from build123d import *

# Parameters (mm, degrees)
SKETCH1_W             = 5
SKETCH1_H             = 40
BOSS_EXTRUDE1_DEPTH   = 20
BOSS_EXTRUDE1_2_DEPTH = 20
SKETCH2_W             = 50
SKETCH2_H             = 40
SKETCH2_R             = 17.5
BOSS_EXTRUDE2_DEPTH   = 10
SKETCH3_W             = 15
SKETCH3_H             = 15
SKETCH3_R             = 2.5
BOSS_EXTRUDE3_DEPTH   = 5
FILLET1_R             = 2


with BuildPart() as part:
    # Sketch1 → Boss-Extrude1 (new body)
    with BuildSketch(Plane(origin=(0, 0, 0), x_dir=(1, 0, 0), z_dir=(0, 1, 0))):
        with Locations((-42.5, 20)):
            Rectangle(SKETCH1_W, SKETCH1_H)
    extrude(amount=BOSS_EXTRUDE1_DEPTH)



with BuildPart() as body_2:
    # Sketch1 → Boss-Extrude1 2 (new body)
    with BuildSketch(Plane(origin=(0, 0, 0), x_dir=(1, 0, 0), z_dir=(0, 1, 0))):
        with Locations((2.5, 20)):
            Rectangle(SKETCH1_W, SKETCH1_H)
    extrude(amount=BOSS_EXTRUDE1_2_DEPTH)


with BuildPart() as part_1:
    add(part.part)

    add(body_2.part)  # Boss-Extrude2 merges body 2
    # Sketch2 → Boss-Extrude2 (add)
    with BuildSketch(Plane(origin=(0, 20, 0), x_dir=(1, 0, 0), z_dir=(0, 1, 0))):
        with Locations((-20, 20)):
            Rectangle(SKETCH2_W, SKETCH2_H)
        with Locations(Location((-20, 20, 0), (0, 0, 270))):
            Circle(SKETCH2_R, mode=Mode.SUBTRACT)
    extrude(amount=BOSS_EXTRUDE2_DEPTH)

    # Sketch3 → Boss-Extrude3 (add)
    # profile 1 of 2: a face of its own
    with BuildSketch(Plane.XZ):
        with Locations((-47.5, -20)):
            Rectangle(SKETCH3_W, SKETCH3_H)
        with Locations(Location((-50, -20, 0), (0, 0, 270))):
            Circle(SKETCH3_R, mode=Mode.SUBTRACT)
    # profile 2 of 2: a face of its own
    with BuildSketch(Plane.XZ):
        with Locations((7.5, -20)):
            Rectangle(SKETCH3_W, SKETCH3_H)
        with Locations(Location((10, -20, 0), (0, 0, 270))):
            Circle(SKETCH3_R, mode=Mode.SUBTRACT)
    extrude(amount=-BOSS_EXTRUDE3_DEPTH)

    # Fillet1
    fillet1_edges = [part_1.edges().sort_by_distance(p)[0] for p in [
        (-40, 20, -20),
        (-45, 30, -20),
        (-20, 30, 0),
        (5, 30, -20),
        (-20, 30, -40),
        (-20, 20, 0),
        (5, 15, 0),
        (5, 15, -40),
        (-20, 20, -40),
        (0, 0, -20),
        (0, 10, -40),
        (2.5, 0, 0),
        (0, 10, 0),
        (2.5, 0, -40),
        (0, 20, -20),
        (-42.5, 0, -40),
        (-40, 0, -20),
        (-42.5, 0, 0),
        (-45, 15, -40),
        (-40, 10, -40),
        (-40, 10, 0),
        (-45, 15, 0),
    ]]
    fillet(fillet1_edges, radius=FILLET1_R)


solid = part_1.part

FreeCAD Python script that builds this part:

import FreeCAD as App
import Part
import Sketcher
from FreeCAD import Vector


def edges_at(feature, points):
    """Names of the edges that pass closest to the given points."""
    edges = feature.Shape.Edges
    near = lambda p: min(range(len(edges)), key=lambda i: edges[i].distToShape(Part.Vertex(*p))[0])
    return sorted({f"Edge{near(p) + 1}" for p in points})


def add_polygon(sketch, points):
    """Adds a closed chain of lines whose ends are joined by coincident constraints."""
    first, n = sketch.GeometryCount, len(points)
    for a, b in zip(points, points[1:] + points[:1]):
        sketch.addGeometry(Part.LineSegment(App.Vector(*a, 0), App.Vector(*b, 0)), False)
    for i in range(n):
        sketch.addConstraint(Sketcher.Constraint("Coincident", first + i, 2, first + (i + 1) % n, 1))

doc = App.newDocument("Part")
body = doc.addObject("PartDesign::Body", "Body")

# Sketch on XZ plane
sketch1 = body.newObject("Sketcher::SketchObject", "Sketch")
sketch1.AttachmentSupport = (doc.getObject("XZ_Plane"), [""])
sketch1.MapMode = "FlatFace"
add_polygon(sketch1, [(-45, -40), (-45, 0), (-40, 0), (-40, -40)])  # lines 0-3
sketch1.addConstraint([
    Sketcher.Constraint("Vertical", 0),
    Sketcher.Constraint("Horizontal", 1),
    Sketcher.Constraint("Vertical", 2),
    Sketcher.Constraint("Horizontal", 3),
    Sketcher.Constraint("PointOnObject", 0, 2, -1),
    Sketcher.Constraint("DistanceX", 1, 1, 1, 2, 5.0),
    Sketcher.Constraint("DistanceY", 0, 1, 0, 2, 40.0),
    Sketcher.Constraint("DistanceX", 0, 2, -1, 1, 45.0),
])
pad1 = body.newObject("PartDesign::Pad", "Pad")
pad1.Profile = sketch1
pad1.Length = 20
pad1.Reversed = True
body2 = doc.addObject("PartDesign::Body", "Body001")

# Sketch on XZ plane
sketch2 = body2.newObject("Sketcher::SketchObject", "Sketch001")
sketch2.AttachmentSupport = (doc.getObject("XZ_Plane001"), [""])
sketch2.MapMode = "FlatFace"
add_polygon(sketch2, [(0, -40), (0, 0), (5, 0), (5, -40)])  # lines 0-3
sketch2.addConstraint([
    Sketcher.Constraint("Vertical", 0),
    Sketcher.Constraint("Horizontal", 1),
    Sketcher.Constraint("Vertical", 2),
    Sketcher.Constraint("Horizontal", 3),
    Sketcher.Constraint("Coincident", 0, 2, -1, 1),
    Sketcher.Constraint("DistanceX", 1, 1, 1, 2, 5.0),
    Sketcher.Constraint("DistanceY", 0, 1, 0, 2, 40.0),
])
pad2 = body2.newObject("PartDesign::Pad", "Pad001")
pad2.Profile = sketch2
pad2.Length = 20
pad2.Reversed = True
body.AllowCompound = True
doc.recompute()

boolean = body.newObject("PartDesign::Boolean", "Boolean")
boolean.Type = "Fuse"
boolean.addObjects([body2])

# Sketch on XZ plane
sketch3 = body.newObject("Sketcher::SketchObject", "Sketch002")
sketch3.AttachmentSupport = (doc.getObject("XZ_Plane"), [""])
sketch3.MapMode = "FlatFace"
sketch3.AttachmentOffset = App.Placement(Vector(0, 0, -20), App.Rotation())
add_polygon(sketch3, [(-45, -40), (-45, 0), (5, 0), (5, -40)])  # lines 0-3
sketch3.addGeometry(Part.Circle(Vector(-20, -20, 0), Vector(0, 0, 1), 18), False)  # 4
sketch3.addConstraint([
    Sketcher.Constraint("Vertical", 0),
    Sketcher.Constraint("Horizontal", 1),
    Sketcher.Constraint("Vertical", 2),
    Sketcher.Constraint("Horizontal", 3),
    Sketcher.Constraint("PointOnObject", 0, 2, -1),
    Sketcher.Constraint("Diameter", 4, 35.0),
    Sketcher.Constraint("DistanceX", 1, 1, 1, 2, 50.0),
    Sketcher.Constraint("DistanceY", 0, 1, 0, 2, 40.0),
    Sketcher.Constraint("DistanceX", 4, 3, -1, 1, 20.0),
    Sketcher.Constraint("DistanceY", 4, 3, -1, 1, 20.0),
    Sketcher.Constraint("DistanceX", 0, 2, -1, 1, 45.0),
])
pad3 = body.newObject("PartDesign::Pad", "Pad002")
pad3.Profile = sketch3
pad3.Length = 10
pad3.Reversed = True

# Sketch on XZ plane
sketch4 = body.newObject("Sketcher::SketchObject", "Sketch003")
sketch4.AttachmentSupport = (doc.getObject("XZ_Plane"), [""])
sketch4.MapMode = "FlatFace"
add_polygon(sketch4, [(-55, -12.5), (-55, -27.5), (-40, -27.5), (-40, -12.5)])  # lines 0-3
sketch4.addGeometry(Part.Circle(Vector(-50, -20, 0), Vector(0, 0, 1), 2.5), False)  # 4
add_polygon(sketch4, [(0, -12.5), (0, -27.5), (15, -27.5), (15, -12.5)])  # lines 5-8
sketch4.addGeometry(Part.Circle(Vector(10, -20, 0), Vector(0, 0, 1), 2.5), False)  # 9
sketch4.addConstraint([
    Sketcher.Constraint("Vertical", 0),
    Sketcher.Constraint("Horizontal", 1),
    Sketcher.Constraint("Vertical", 2),
    Sketcher.Constraint("Horizontal", 3),
    Sketcher.Constraint("Vertical", 5),
    Sketcher.Constraint("Horizontal", 6),
    Sketcher.Constraint("Vertical", 7),
    Sketcher.Constraint("Horizontal", 8),
    Sketcher.Constraint("Equal", 4, 9),
    Sketcher.Constraint("PointOnObject", 5, 2, -2),
    Sketcher.Constraint("Horizontal", 4, 3, 9, 3),
    Sketcher.Constraint("Horizontal", 1, 2, 5, 2),
    Sketcher.Constraint("Horizontal", 3, 2, 7, 2),
    Sketcher.Constraint("Equal", 3, 6),
    Sketcher.Constraint("Equal", 8, 0),
    Sketcher.Constraint("Diameter", 4, 5.0),
    Sketcher.Constraint("DistanceX", 1, 1, 1, 2, 15.0),
    Sketcher.Constraint("DistanceX", 4, 3, -1, 1, 50.0),
    Sketcher.Constraint("DistanceY", 4, 3, -1, 1, 20.0),
    Sketcher.Constraint("DistanceX", -1, 1, 9, 3, 10.0),
    Sketcher.Constraint("DistanceX", 0, 2, -1, 1, 55.0),
    Sketcher.Constraint("DistanceY", 0, 2, -1, 1, 27.5),
])
pad4 = body.newObject("PartDesign::Pad", "Pad003")
pad4.Profile = sketch4
pad4.Length = 5
pad4.Reversed = True
doc.recompute()

fillet = body.newObject("PartDesign::Fillet", "Fillet")
fillet.Base = (pad4, edges_at(pad4, [
    (-40, 20, -20),
    (-45, 30, -20),
    (-20, 30, 0),
    (5, 30, -20),
    (-20, 30, -40),
    (-20, 20, 0),
    (5, 15, 0),
    (5, 15, -40),
    (-20, 20, -40),
    (0, 0, -20),
    (0, 10, -40),
    (2.5, 0, 0),
    (0, 10, 0),
    (2.5, 0, -40),
    (0, 20, -20),
    (-42.5, 0, -40),
    (-40, 0, -20),
    (-42.5, 0, 0),
    (-45, 15, -40),
    (-40, 10, -40),
    (-40, 10, 0),
    (-45, 15, 0),
]))
fillet.Radius = 2

doc.recompute()
